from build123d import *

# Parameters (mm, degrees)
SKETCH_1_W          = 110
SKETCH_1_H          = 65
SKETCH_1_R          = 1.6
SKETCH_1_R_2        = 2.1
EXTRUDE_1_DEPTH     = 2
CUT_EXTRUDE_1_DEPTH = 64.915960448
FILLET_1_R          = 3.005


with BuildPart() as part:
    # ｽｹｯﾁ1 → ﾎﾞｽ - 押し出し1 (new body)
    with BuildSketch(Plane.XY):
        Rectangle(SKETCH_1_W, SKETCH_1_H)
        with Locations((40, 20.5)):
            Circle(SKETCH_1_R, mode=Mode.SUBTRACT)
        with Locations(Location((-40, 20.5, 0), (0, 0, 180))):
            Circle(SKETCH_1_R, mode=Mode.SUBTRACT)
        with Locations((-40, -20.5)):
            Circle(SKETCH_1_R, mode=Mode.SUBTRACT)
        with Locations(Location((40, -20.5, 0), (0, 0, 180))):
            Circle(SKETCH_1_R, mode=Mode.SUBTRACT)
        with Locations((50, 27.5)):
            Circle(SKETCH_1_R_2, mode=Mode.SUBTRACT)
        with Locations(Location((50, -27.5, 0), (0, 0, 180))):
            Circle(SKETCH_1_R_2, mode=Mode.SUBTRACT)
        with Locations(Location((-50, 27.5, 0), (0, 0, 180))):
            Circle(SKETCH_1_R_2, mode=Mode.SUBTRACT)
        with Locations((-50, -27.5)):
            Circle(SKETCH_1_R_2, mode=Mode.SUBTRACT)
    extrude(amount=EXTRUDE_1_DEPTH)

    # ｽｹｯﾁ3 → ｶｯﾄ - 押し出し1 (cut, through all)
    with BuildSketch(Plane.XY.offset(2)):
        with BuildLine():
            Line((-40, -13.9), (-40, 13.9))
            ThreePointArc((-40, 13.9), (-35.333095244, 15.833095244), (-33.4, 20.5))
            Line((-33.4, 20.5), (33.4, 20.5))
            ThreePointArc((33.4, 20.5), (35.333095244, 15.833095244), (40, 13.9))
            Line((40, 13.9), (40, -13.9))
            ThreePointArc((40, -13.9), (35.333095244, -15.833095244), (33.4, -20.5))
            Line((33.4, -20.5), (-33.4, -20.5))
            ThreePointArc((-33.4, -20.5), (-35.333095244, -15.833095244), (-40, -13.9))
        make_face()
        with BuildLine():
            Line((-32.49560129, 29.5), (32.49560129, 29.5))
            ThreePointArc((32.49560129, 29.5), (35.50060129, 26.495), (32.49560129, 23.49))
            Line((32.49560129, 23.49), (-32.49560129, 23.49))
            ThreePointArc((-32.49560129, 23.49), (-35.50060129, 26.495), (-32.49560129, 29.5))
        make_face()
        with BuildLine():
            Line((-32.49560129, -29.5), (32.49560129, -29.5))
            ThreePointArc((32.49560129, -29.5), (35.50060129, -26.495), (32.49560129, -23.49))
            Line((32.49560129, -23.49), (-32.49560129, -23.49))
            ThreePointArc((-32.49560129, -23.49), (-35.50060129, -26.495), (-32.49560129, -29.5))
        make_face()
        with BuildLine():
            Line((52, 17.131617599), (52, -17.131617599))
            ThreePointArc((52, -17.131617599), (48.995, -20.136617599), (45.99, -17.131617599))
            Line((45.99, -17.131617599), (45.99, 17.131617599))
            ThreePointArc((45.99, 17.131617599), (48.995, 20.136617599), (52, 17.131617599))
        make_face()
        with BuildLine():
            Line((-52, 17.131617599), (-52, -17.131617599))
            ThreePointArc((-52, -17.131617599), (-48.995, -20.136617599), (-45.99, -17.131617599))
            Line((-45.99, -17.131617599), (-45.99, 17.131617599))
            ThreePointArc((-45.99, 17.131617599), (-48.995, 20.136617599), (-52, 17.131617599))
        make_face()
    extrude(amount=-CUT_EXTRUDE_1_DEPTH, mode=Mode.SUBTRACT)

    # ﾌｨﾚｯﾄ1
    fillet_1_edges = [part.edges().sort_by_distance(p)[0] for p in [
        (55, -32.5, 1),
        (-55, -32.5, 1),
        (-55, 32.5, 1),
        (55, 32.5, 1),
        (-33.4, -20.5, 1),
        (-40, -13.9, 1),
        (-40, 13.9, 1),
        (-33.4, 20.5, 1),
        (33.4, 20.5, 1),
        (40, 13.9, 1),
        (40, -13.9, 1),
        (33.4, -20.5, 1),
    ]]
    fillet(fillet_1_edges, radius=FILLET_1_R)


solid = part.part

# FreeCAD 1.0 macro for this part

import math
import FreeCAD as App
import Part
import Sketcher
Q = App.Units.Quantity


def edges_at(feature, points):
    """Names of the edges that pass closest to the given points."""
    edges = feature.Shape.Edges
    near = lambda p: min(range(len(edges)), key=lambda i: edges[i].distToShape(Part.Vertex(*p))[0])
    return sorted({f"Edge{near(p) + 1}" for p in points})


def add_polygon(sketch, points):
    """Adds a closed chain of lines whose ends are joined by coincident constraints."""
    first, n = sketch.GeometryCount, len(points)
    for a, b in zip(points, points[1:] + points[:1]):
        sketch.addGeometry(Part.LineSegment(App.Vector(*a, 0), App.Vector(*b, 0)), False)
    for i in range(n):
        sketch.addConstraint(Sketcher.Constraint("Coincident", first + i, 2, first + (i + 1) % n, 1))

doc = App.newDocument("Part")
params = doc.addObject("Spreadsheet::Sheet", "Params")
for row, (alias, value) in enumerate([
    ("sketch1_diameter", "4.2 mm"),
    ("sketch1_diameter2", "3.2 mm"),
    ("sketch1_width", "110 mm"),
    ("sketch1_height", "65 mm"),
    ("pad1_length", "2 mm"),
    ("sketch2_radius", "6.6 mm"),
    ("sketch2_width", "66.8 mm"),
    ("sketch2_height", "27.8 mm"),
    ("fillet_radius", "3.005 mm"),
], start=1):
    params.set(f"A{row}", alias)
    params.set(f"B{row}", "=" + value)
    params.setAlias(f"B{row}", alias)

body = doc.addObject("PartDesign::Body", "Body")

# Sketch on XY plane
sketch1 = doc.addObject("Sketcher::SketchObject", "Sketch")
body.addObject(sketch1)
sketch1.AttachmentSupport = (doc.XY_Plane, [""])
sketch1.MapMode = "FlatFace"
add_polygon(sketch1, [(-55, 32.5), (-55, -32.5), (55, -32.5), (55, 32.5)])  # lines 0-3
sketch1.addGeometry(Part.Circle(App.Vector(-50, -27.5, 0), App.Vector(0, 0, 1), 2.1), False)  # 4
sketch1.addGeometry(Part.Circle(App.Vector(-40, -20.5, 0), App.Vector(0, 0, 1), 1.6), False)  # 5
sketch1.addGeometry(Part.Circle(App.Vector(50, -27.5, 0), App.Vector(0, 0, 1), 2.1), False)  # 6
sketch1.addGeometry(Part.Circle(App.Vector(40, -20.5, 0), App.Vector(0, 0, 1), 1.6), False)  # 7
sketch1.addGeometry(Part.Circle(App.Vector(-40, 20.5, 0), App.Vector(0, 0, 1), 1.6), False)  # 8
sketch1.addGeometry(Part.Circle(App.Vector(-50, 27.5, 0), App.Vector(0, 0, 1), 2.1), False)  # 9
sketch1.addGeometry(Part.Circle(App.Vector(40, 20.5, 0), App.Vector(0, 0, 1), 1.6), False)  # 10
sketch1.addGeometry(Part.Circle(App.Vector(50, 27.5, 0), App.Vector(0, 0, 1), 2.1), False)  # 11
sketch1.addConstraint([
    Sketcher.Constraint("Vertical", 0),
    Sketcher.Constraint("Horizontal", 1),
    Sketcher.Constraint("Vertical", 2),
    Sketcher.Constraint("Horizontal", 3),
    Sketcher.Constraint("Equal", 4, 6),
    Sketcher.Constraint("Equal", 5, 7),
    Sketcher.Constraint("Equal", 7, 8),
    Sketcher.Constraint("Equal", 6, 9),
    Sketcher.Constraint("Equal", 8, 10),
    Sketcher.Constraint("Equal", 9, 11),
    Sketcher.Constraint("Symmetric", 7, 3, 8, 3, -1, 1),
    Sketcher.Constraint("Symmetric", 6, 3, 9, 3, -1, 1),
    Sketcher.Constraint("Symmetric", 5, 3, 10, 3, -1, 1),
    Sketcher.Constraint("Symmetric", 4, 3, 11, 3, -1, 1),
    Sketcher.Constraint("Symmetric", 0, 2, 2, 2, -1, 1),
    Sketcher.Constraint("Symmetric", 4, 3, 6, 3, -2),
    Sketcher.Constraint("Symmetric", 5, 3, 7, 3, -2),
    Sketcher.Constraint("Diameter", 4, Q("4.2 mm")),
    Sketcher.Constraint("Diameter", 5, Q("3.2 mm")),
    Sketcher.Constraint("DistanceX", 1, 1, 1, 2, Q("110 mm")),
    Sketcher.Constraint("DistanceY", 0, 2, 0, 1, Q("65 mm")),
    Sketcher.Constraint("DistanceX", 4, 3, -1, 1, Q("50 mm")),
    Sketcher.Constraint("DistanceX", 5, 3, -1, 1, Q("40 mm")),
    Sketcher.Constraint("DistanceY", 4, 3, 5, 3, Q("7 mm")),
    Sketcher.Constraint("DistanceY", 5, 3, 8, 3, Q("41 mm")),
])
sketch1.setExpression("Constraints[21]", "Params.sketch1_diameter")
sketch1.setExpression("Constraints[22]", "Params.sketch1_diameter2")
sketch1.setExpression("Constraints[23]", "Params.sketch1_width")
sketch1.setExpression("Constraints[24]", "Params.sketch1_height")
pad1 = doc.addObject("PartDesign::Pad", "Pad")
body.addObject(pad1)
pad1.Profile = sketch1
pad1.setExpression("Length", "Params.pad1_length")

# Sketch on XY plane
sketch2 = doc.addObject("Sketcher::SketchObject", "Sketch001")
body.addObject(sketch2)
sketch2.AttachmentSupport = (doc.XY_Plane, [""])
sketch2.MapMode = "FlatFace"
sketch2.AttachmentOffset = App.Placement(App.Vector(0, 0, 2), App.Rotation())
sketch2.addGeometry([
    Part.LineSegment(App.Vector(-40, 13.9, 0), App.Vector(-40, -13.9, 0)),  # 0
    Part.ArcOfCircle(Part.Circle(App.Vector(-40, -20.5, 0), App.Vector(0, 0, 1), 6.6), math.radians(0), math.radians(90)),  # 1
    Part.LineSegment(App.Vector(-33.4, -20.5, 0), App.Vector(33.4, -20.5, 0)),  # 2
    Part.ArcOfCircle(Part.Circle(App.Vector(40, -20.5, 0), App.Vector(0, 0, 1), 6.6), math.radians(90), math.radians(180)),  # 3
    Part.LineSegment(App.Vector(40, -13.9, 0), App.Vector(40, 13.9, 0)),  # 4
    Part.ArcOfCircle(Part.Circle(App.Vector(40, 20.5, 0), App.Vector(0, 0, 1), 6.6), math.radians(180), math.radians(270)),  # 5
    Part.LineSegment(App.Vector(33.4, 20.5, 0), App.Vector(-33.4, 20.5, 0)),  # 6
    Part.ArcOfCircle(Part.Circle(App.Vector(-40, 20.5, 0), App.Vector(0, 0, 1), 6.6), math.radians(-90), math.radians(0)),  # 7
    Part.LineSegment(App.Vector(32.5, 29.5, 0), App.Vector(-32.5, 29.5, 0)),  # 8
    Part.ArcOfCircle(Part.Circle(App.Vector(-32.5, 26.5, 0), App.Vector(0, 0, 1), 3), math.radians(90), math.radians(270)),  # 9
    Part.LineSegment(App.Vector(-32.5, 23.5, 0), App.Vector(32.5, 23.5, 0)),  # 10
    Part.ArcOfCircle(Part.Circle(App.Vector(32.5, 26.5, 0), App.Vector(0, 0, 1), 3), math.radians(-90), math.radians(90)),  # 11
    Part.LineSegment(App.Vector(-32.5, -29.5, 0), App.Vector(32.5, -29.5, 0)),  # 12
    Part.ArcOfCircle(Part.Circle(App.Vector(32.5, -26.5, 0), App.Vector(0, 0, 1), 3), math.radians(-90), math.radians(90)),  # 13
    Part.LineSegment(App.Vector(32.5, -23.5, 0), App.Vector(-32.5, -23.5, 0)),  # 14
    Part.ArcOfCircle(Part.Circle(App.Vector(-32.5, -26.5, 0), App.Vector(0, 0, 1), 3), math.radians(90), math.radians(270)),  # 15
    Part.LineSegment(App.Vector(52, -17.1, 0), App.Vector(52, 17.1, 0)),  # 16
    Part.ArcOfCircle(Part.Circle(App.Vector(49, 17.1, 0), App.Vector(0, 0, 1), 3), math.radians(0), math.radians(180)),  # 17
    Part.LineSegment(App.Vector(46, 17.1, 0), App.Vector(46, -17.1, 0)),  # 18
    Part.ArcOfCircle(Part.Circle(App.Vector(49, -17.1, 0), App.Vector(0, 0, 1), 3), math.radians(180), math.radians(360)),  # 19
    Part.LineSegment(App.Vector(-52, 17.1, 0), App.Vector(-52, -17.1, 0)),  # 20
    Part.ArcOfCircle(Part.Circle(App.Vector(-49, -17.1, 0), App.Vector(0, 0, 1), 3), math.radians(180), math.radians(360)),  # 21
    Part.LineSegment(App.Vector(-46, -17.1, 0), App.Vector(-46, 17.1, 0)),  # 22
    Part.ArcOfCircle(Part.Circle(App.Vector(-49, 17.1, 0), App.Vector(0, 0, 1), 3), math.radians(0), math.radians(180)),  # 23
], False)
sketch2.addConstraint([
    Sketcher.Constraint("Coincident", 0, 2, 1, 2),
    Sketcher.Constraint("Coincident", 1, 1, 2, 1),
    Sketcher.Constraint("Coincident", 2, 2, 3, 2),
    Sketcher.Constraint("Coincident", 3, 1, 4, 1),
    Sketcher.Constraint("Coincident", 4, 2, 5, 2),
    Sketcher.Constraint("Coincident", 5, 1, 6, 1),
    Sketcher.Constraint("Coincident", 6, 2, 7, 2),
    Sketcher.Constraint("Coincident", 7, 1, 0, 1),
    Sketcher.Constraint("Tangent", 8, 2, 9, 1),
    Sketcher.Constraint("Tangent", 9, 2, 10, 1),
    Sketcher.Constraint("Tangent", 10, 2, 11, 1),
    Sketcher.Constraint("Tangent", 11, 2, 8, 1),
    Sketcher.Constraint("Tangent", 12, 2, 13, 1),
    Sketcher.Constraint("Tangent", 13, 2, 14, 1),
    Sketcher.Constraint("Tangent", 14, 2, 15, 1),
    Sketcher.Constraint("Tangent", 15, 2, 12, 1),
    Sketcher.Constraint("Tangent", 16, 2, 17, 1),
    Sketcher.Constraint("Tangent", 17, 2, 18, 1),
    Sketcher.Constraint("Tangent", 18, 2, 19, 1),
    Sketcher.Constraint("Tangent", 19, 2, 16, 1),
    Sketcher.Constraint("Tangent", 20, 2, 21, 1),
    Sketcher.Constraint("Tangent", 21, 2, 22, 1),
    Sketcher.Constraint("Tangent", 22, 2, 23, 1),
    Sketcher.Constraint("Tangent", 23, 2, 20, 1),
    Sketcher.Constraint("Vertical", 0),
    Sketcher.Constraint("Horizontal", 2),
    Sketcher.Constraint("Vertical", 4),
    Sketcher.Constraint("Horizontal", 6),
    Sketcher.Constraint("Horizontal", 8),
    Sketcher.Constraint("Horizontal", 10),
    Sketcher.Constraint("Horizontal", 12),
    Sketcher.Constraint("Horizontal", 14),
    Sketcher.Constraint("Vertical", 16),
    Sketcher.Constraint("Vertical", 18),
    Sketcher.Constraint("Vertical", 20),
    Sketcher.Constraint("Vertical", 22),
    Sketcher.Constraint("Equal", 1, 3),
    Sketcher.Constraint("Equal", 3, 5),
    Sketcher.Constraint("Equal", 5, 7),
    Sketcher.Constraint("Equal", 11, 13),
    Sketcher.Constraint("Equal", 15, 17),
    Sketcher.Constraint("Equal", 19, 21),
    Sketcher.Constraint("Symmetric", 1, 3, 5, 3, -1, 1),
    Sketcher.Constraint("Symmetric", 3, 3, 7, 3, -1, 1),
    Sketcher.Constraint("Symmetric", 9, 3, 13, 3, -1, 1),
    Sketcher.Constraint("Symmetric", 17, 3, 21, 3, -1, 1),
    Sketcher.Constraint("Symmetric", 1, 3, 3, 3, -2),
    Sketcher.Constraint("Horizontal", 19, 3, 21, 3),
    Sketcher.Constraint("Horizontal", 17, 3, 23, 3),
    Sketcher.Constraint("Horizontal", 3, 3, 1, 1),
    Sketcher.Constraint("Horizontal", 7, 3, 5, 1),
    Sketcher.Constraint("Vertical", 11, 3, 13, 3),
    Sketcher.Constraint("Vertical", 9, 3, 15, 3),
    Sketcher.Constraint("Vertical", 7, 3, 0, 2),
    Sketcher.Constraint("Vertical", 5, 3, 3, 1),
    Sketcher.Constraint("Radius", 1, Q("6.6 mm")),
    Sketcher.Constraint("DistanceX", 2, 1, 2, 2, Q("66.8 mm")),
    Sketcher.Constraint("DistanceY", 0, 2, 0, 1, Q("27.8 mm")),
    Sketcher.Constraint("DistanceX", -1, 1, 16, 2, Q("52 mm")),
    Sketcher.Constraint("Radius", 9, Q("3.005 mm")),
    Sketcher.Constraint("DistanceY", 6, 2, 8, 2, Q("9 mm")),
    Sketcher.Constraint("DistanceX", 9, 3, -1, 1, Q("32.495601 mm")),
    Sketcher.Constraint("DistanceY", 16, 1, 16, 2, Q("34.263235 mm")),
])
sketch2.setExpression("Constraints[55]", "Params.sketch2_radius")
sketch2.setExpression("Constraints[56]", "Params.sketch2_width")
sketch2.setExpression("Constraints[57]", "Params.sketch2_height")
pocket1 = doc.addObject("PartDesign::Pocket", "Pocket")
body.addObject(pocket1)
pocket1.Profile = sketch2
pocket1.Type = "ThroughAll"
doc.recompute()

fillet = doc.addObject("PartDesign::Fillet", "Fillet")
body.addObject(fillet)
fillet.Base = (pocket1, edges_at(pocket1, [
    (55, -32.5, 1),
    (-55, -32.5, 1),
    (-55, 32.5, 1),
    (55, 32.5, 1),
    (-33.4, -20.5, 1),
    (-40, -13.9, 1),
    (-40, 13.9, 1),
    (-33.4, 20.5, 1),
    (33.4, 20.5, 1),
    (40, 13.9, 1),
    (40, -13.9, 1),
    (33.4, -20.5, 1),
]))
fillet.setExpression("Radius", "Params.fillet_radius")

doc.recompute()
